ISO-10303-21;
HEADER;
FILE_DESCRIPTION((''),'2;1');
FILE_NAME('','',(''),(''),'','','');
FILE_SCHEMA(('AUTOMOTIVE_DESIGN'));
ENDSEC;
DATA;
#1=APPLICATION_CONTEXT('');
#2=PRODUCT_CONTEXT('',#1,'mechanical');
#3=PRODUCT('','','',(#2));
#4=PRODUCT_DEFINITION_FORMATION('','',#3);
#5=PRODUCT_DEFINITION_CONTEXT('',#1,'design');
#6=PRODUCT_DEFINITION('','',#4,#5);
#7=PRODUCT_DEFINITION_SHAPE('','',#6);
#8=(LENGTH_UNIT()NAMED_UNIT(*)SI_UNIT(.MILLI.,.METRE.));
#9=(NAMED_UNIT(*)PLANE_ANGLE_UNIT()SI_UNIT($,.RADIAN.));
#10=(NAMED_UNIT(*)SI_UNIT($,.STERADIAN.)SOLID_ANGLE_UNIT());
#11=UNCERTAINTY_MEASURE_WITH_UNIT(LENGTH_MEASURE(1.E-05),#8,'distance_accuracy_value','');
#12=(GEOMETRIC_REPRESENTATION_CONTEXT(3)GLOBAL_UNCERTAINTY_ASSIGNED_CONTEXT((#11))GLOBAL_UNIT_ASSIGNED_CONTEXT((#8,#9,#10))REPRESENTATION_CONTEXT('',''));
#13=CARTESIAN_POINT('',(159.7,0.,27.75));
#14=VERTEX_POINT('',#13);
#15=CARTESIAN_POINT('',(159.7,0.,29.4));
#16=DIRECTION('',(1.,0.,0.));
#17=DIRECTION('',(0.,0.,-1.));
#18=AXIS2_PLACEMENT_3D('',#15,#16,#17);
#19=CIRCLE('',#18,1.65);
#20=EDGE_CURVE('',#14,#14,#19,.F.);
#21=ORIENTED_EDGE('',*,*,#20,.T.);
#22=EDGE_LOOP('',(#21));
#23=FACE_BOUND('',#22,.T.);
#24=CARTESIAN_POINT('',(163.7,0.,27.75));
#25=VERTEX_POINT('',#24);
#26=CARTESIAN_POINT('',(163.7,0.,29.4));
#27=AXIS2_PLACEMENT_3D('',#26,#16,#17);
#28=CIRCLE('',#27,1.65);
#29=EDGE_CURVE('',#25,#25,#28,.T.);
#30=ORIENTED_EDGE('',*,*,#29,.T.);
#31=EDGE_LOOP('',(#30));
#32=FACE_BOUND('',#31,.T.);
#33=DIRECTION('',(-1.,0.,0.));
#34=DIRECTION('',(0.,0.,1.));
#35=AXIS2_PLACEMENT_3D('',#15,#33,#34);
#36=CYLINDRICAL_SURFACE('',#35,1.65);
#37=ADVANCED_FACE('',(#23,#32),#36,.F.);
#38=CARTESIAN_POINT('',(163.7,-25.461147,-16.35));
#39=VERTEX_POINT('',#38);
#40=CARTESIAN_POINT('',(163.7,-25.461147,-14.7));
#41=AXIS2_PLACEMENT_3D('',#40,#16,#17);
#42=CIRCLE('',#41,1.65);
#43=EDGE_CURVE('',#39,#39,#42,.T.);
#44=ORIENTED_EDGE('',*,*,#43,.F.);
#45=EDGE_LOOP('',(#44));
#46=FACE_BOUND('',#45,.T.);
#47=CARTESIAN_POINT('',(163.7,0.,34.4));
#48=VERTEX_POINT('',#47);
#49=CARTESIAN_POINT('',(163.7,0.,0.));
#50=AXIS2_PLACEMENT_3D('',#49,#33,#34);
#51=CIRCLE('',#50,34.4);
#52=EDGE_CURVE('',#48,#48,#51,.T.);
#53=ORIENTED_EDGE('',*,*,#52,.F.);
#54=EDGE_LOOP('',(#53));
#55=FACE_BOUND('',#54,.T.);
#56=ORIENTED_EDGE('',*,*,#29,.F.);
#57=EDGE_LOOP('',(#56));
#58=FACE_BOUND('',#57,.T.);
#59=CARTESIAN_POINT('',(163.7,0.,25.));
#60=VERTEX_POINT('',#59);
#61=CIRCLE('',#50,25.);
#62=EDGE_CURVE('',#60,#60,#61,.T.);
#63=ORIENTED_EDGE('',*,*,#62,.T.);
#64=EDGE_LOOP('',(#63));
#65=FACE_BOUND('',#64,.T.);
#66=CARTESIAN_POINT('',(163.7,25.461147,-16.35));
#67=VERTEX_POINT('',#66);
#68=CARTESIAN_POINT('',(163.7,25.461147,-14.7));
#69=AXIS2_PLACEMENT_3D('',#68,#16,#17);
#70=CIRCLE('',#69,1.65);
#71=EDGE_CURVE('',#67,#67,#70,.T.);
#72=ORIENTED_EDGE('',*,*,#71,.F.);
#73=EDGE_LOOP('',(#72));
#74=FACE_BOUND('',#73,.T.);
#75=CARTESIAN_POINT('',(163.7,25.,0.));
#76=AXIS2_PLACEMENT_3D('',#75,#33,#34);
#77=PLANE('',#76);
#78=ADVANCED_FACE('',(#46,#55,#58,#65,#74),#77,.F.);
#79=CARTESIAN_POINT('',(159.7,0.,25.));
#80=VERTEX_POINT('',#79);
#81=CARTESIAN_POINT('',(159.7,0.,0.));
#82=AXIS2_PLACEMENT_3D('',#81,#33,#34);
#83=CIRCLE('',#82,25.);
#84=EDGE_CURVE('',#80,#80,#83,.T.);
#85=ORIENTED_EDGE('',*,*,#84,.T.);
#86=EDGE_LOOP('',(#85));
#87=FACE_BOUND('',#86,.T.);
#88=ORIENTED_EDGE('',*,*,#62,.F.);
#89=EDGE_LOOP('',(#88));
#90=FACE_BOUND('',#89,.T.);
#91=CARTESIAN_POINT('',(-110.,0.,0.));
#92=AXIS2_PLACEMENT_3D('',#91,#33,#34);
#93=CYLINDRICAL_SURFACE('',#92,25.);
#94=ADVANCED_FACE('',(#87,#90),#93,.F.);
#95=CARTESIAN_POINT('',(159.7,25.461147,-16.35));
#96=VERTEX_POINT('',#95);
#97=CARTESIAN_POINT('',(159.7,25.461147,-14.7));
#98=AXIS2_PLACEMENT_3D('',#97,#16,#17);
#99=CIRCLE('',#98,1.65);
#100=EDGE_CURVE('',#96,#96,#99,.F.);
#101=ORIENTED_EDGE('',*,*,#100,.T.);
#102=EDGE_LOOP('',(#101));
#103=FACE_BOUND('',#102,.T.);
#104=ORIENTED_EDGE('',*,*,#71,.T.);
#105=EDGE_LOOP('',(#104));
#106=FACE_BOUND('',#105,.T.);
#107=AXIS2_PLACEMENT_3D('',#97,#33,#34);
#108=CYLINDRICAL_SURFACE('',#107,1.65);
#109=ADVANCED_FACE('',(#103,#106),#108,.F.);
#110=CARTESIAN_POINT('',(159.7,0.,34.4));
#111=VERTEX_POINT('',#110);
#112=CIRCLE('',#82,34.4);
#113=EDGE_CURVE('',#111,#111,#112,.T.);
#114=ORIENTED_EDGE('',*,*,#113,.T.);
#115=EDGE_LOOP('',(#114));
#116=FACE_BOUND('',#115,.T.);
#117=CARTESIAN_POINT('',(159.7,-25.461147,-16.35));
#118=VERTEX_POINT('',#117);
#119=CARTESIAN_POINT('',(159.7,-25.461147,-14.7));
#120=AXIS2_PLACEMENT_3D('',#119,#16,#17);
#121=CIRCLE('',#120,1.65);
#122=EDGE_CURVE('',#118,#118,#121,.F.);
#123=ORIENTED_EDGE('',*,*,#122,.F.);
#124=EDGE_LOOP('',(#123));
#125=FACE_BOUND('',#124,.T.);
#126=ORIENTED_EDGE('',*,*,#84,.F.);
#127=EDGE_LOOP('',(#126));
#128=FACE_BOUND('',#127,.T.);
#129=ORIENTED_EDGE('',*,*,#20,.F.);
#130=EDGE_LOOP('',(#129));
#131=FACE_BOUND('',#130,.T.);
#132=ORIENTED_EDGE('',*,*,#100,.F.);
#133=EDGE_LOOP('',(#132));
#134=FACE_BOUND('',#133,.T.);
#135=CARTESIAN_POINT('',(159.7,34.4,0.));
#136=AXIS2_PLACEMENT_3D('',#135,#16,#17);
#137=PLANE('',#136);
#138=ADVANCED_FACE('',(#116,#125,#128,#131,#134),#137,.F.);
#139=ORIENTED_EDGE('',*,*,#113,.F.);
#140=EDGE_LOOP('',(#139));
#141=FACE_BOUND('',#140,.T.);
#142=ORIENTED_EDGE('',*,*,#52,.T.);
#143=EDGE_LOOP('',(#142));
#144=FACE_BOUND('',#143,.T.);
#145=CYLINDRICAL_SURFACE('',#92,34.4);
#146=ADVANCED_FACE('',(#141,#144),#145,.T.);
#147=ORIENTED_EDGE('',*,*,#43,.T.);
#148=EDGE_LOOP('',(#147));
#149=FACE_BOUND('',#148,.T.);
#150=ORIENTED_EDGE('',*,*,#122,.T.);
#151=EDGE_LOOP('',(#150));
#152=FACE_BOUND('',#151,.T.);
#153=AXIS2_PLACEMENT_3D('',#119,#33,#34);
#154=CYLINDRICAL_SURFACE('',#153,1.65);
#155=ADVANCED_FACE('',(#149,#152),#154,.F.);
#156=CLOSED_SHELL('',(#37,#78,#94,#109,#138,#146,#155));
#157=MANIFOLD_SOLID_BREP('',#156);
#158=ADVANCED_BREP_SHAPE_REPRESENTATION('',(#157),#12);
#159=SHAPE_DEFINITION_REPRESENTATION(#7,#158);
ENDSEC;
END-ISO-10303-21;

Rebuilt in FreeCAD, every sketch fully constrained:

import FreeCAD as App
import Part
import Sketcher
from FreeCAD import Vector
Q = App.Units.Quantity


def add_polygon(sketch, points):
    """Adds a closed chain of lines whose ends are joined by coincident constraints."""
    first, n = sketch.GeometryCount, len(points)
    for a, b in zip(points, points[1:] + points[:1]):
        sketch.addGeometry(Part.LineSegment(App.Vector(*a, 0), App.Vector(*b, 0)), False)
    for i in range(n):
        sketch.addConstraint(Sketcher.Constraint("Coincident", first + i, 2, first + (i + 1) % n, 1))

doc = App.newDocument("Part")
body = doc.addObject("PartDesign::Body", "Body")

sketch1 = body.newObject("Sketcher::SketchObject", "Sketch")
sketch1.AttachmentSupport = (doc.getObject("XY_Plane"), [""])
sketch1.MapMode = "FlatFace"
add_polygon(sketch1, [(159.7, 34.4), (159.7, 25), (163.7, 25), (163.7, 34.4)])
sketch1.addConstraint(Sketcher.Constraint("Vertical", 0))
sketch1.addConstraint(Sketcher.Constraint("Horizontal", 1))
sketch1.addConstraint(Sketcher.Constraint("Vertical", 2))
sketch1.addConstraint(Sketcher.Constraint("Horizontal", 3))
sketch1.addConstraint(Sketcher.Constraint("DistanceX", 1, 1, 1, 2, Q("4 mm")))
sketch1.addConstraint(Sketcher.Constraint("DistanceY", 0, 2, 0, 1, Q("9.4 mm")))
sketch1.addConstraint(Sketcher.Constraint("DistanceY", -1, 1, 0, 2, Q("25 mm")))
sketch1.addConstraint(Sketcher.Constraint("DistanceX", -1, 1, 0, 2, Q("159.7 mm")))
revolution = body.newObject("PartDesign::Revolution", "Revolution")
revolution.Profile = sketch1
revolution.ReferenceAxis = (sketch1, ["H_Axis"])
revolution.Angle = 360

sketch2 = body.newObject("Sketcher::SketchObject", "Sketch001")
sketch2.AttachmentSupport = (doc.getObject("YZ_Plane"), [""])
sketch2.MapMode = "FlatFace"
sketch2.addGeometry(Part.Circle(Vector(0, 29.4, 0), Vector(0, 0, 1), 1.65), False)
sketch2.addGeometry(Part.Circle(Vector(-25.461147, -14.7, 0), Vector(0, 0, 1), 1.65), False)
sketch2.addGeometry(Part.Circle(Vector(25.461147, -14.7, 0), Vector(0, 0, 1), 1.65), False)
sketch2.addConstraint(Sketcher.Constraint("Equal", 0, 1))
sketch2.addConstraint(Sketcher.Constraint("Equal", 1, 2))
sketch2.addConstraint(Sketcher.Constraint("Symmetric", 1, 3, 2, 3, -2))
sketch2.addConstraint(Sketcher.Constraint("PointOnObject", 0, 3, -2))
sketch2.addConstraint(Sketcher.Constraint("Diameter", 0, Q("3.3 mm")))
sketch2.addConstraint(Sketcher.Constraint("DistanceY", -1, 1, 0, 3, Q("29.4 mm")))
sketch2.addConstraint(Sketcher.Constraint("DistanceY", 1, 3, -1, 1, Q("14.7 mm")))
sketch2.addConstraint(Sketcher.Constraint("DistanceX", 1, 3, -1, 1, Q("25.461147 mm")))
pocket1 = body.newObject("PartDesign::Pocket", "Pocket")
pocket1.Profile = sketch2
pocket1.Type = "ThroughAll"
pocket1.Midplane = True

doc.recompute()
